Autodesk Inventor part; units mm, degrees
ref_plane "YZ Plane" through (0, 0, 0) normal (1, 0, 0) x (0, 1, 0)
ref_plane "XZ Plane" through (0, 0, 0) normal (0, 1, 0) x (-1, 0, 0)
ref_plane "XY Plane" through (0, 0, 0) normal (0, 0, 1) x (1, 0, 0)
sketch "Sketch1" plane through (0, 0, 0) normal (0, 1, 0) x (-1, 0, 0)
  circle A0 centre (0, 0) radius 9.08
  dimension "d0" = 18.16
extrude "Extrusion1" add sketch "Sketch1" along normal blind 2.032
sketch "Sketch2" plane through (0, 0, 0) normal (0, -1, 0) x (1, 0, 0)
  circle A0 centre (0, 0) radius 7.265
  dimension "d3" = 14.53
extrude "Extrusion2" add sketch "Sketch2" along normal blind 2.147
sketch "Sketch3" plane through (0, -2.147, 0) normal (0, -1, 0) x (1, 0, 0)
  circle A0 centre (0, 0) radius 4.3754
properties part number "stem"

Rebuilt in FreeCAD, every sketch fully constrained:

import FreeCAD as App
import Part
import Sketcher
Q = App.Units.Quantity

doc = App.newDocument("Part")
body = doc.addObject("PartDesign::Body", "Body")

# Sketch on XZ plane
sketch1 = body.newObject("Sketcher::SketchObject", "Sketch")
sketch1.AttachmentSupport = (doc.getObject("XZ_Plane"), [""])
sketch1.MapMode = "FlatFace"
sketch1.addGeometry(Part.Circle(App.Vector(0, 0, 0), App.Vector(0, 0, 1), 9), False)
sketch1.addConstraint(Sketcher.Constraint("Coincident", 0, 3, -1, 1))
sketch1.addConstraint(Sketcher.Constraint("Diameter", 0, 18.16))
pad1 = body.newObject("PartDesign::Pad", "Pad")
pad1.Profile = sketch1
pad1.Length = Q("0.08 in")
pad1.Reversed = True

# Sketch on XZ plane
sketch2 = body.newObject("Sketcher::SketchObject", "Sketch001")
sketch2.AttachmentSupport = (doc.getObject("XZ_Plane"), [""])
sketch2.MapMode = "FlatFace"
sketch2.addGeometry(Part.Circle(App.Vector(0, 0, 0), App.Vector(0, 0, 1), 7), False)
sketch2.addConstraint(Sketcher.Constraint("Coincident", 0, 3, -1, 1))
sketch2.addConstraint(Sketcher.Constraint("Diameter", 0, 14.53))
pad2 = body.newObject("PartDesign::Pad", "Pad001")
pad2.Profile = sketch2
pad2.Length = 2.147

doc.recompute()
